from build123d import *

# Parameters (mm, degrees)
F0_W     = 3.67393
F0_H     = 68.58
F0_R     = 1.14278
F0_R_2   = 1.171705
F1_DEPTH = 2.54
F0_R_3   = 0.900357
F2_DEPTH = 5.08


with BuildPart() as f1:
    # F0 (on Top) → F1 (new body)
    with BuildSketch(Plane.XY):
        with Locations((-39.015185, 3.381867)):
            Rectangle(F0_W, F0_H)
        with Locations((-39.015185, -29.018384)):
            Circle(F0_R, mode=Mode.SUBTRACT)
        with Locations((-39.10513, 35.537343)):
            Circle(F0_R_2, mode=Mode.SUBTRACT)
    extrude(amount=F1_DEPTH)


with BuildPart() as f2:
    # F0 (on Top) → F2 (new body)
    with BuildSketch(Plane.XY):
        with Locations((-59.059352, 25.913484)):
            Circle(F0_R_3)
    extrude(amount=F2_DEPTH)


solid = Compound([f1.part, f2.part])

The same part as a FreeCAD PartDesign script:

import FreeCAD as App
import Part
import Sketcher
from FreeCAD import Vector
Q = App.Units.Quantity


def add_polygon(sketch, points):
    """Adds a closed chain of lines whose ends are joined by coincident constraints."""
    first, n = sketch.GeometryCount, len(points)
    for a, b in zip(points, points[1:] + points[:1]):
        sketch.addGeometry(Part.LineSegment(App.Vector(*a, 0), App.Vector(*b, 0)), False)
    for i in range(n):
        sketch.addConstraint(Sketcher.Constraint("Coincident", first + i, 2, first + (i + 1) % n, 1))

doc = App.newDocument("Part")
body = doc.addObject("PartDesign::Body", "Body")

# Sketch on XY plane
sketch1 = body.newObject("Sketcher::SketchObject", "Sketch")
sketch1.AttachmentSupport = (doc.getObject("XY_Plane"), [""])
sketch1.MapMode = "FlatFace"
add_polygon(sketch1, [(-40.85215, 37.671867), (-40.85215, -30.908133), (-37.17822, -30.908133), (-37.17822, 37.671867)])  # lines 0-3
sketch1.addGeometry(Part.Circle(Vector(-39.015185, -29.018384, 0), Vector(0, 0, 1), 1.14278), False)  # 4
sketch1.addGeometry(Part.Circle(Vector(-39.10513, 35.537343, 0), Vector(0, 0, 1), 1.171705), False)  # 5
sketch1.addConstraint([
    Sketcher.Constraint("Vertical", 0),
    Sketcher.Constraint("Horizontal", 1),
    Sketcher.Constraint("Vertical", 2),
    Sketcher.Constraint("Horizontal", 3),
    Sketcher.Constraint("DistanceY", 0, 2, 0, 1, Q("2.7 in")),
    Sketcher.Constraint("Diameter", 4, Q("2.28556 mm")),
    Sketcher.Constraint("Diameter", 5, Q("2.34341 mm")),
    Sketcher.Constraint("DistanceX", 1, 1, 1, 2, Q("3.67393 mm")),
    Sketcher.Constraint("DistanceX", 5, 3, -1, 1, Q("39.10513 mm")),
    Sketcher.Constraint("DistanceX", 0, 2, -1, 1, Q("40.85215 mm")),
    Sketcher.Constraint("DistanceY", 0, 2, 4, 3, Q("1.889749 mm")),
    Sketcher.Constraint("DistanceX", 4, 3, -1, 1, Q("39.015185 mm")),
    Sketcher.Constraint("DistanceY", 4, 3, -1, 1, Q("29.018384 mm")),
    Sketcher.Constraint("DistanceY", -1, 1, 5, 3, Q("35.537343 mm")),
])
pad1 = body.newObject("PartDesign::Pad", "Pad")
pad1.Profile = sketch1
pad1.Length = Q("0.1 in")
body2 = doc.addObject("PartDesign::Body", "Body001")

# Sketch on XY plane
sketch2 = body2.newObject("Sketcher::SketchObject", "Sketch001")
sketch2.AttachmentSupport = (doc.getObject("XY_Plane001"), [""])
sketch2.MapMode = "FlatFace"
sketch2.addGeometry(Part.Circle(Vector(-59.059352, 25.913484, 0), Vector(0, 0, 1), 0.900357), False)
sketch2.addConstraint([
    Sketcher.Constraint("Diameter", 0, Q("1.800714 mm")),
    Sketcher.Constraint("DistanceX", 0, 3, -1, 1, Q("59.059352 mm")),
    Sketcher.Constraint("DistanceY", -1, 1, 0, 3, Q("25.913484 mm")),
])
pad2 = body2.newObject("PartDesign::Pad", "Pad001")
pad2.Profile = sketch2
pad2.Length = Q("0.2 in")

doc.recompute()
